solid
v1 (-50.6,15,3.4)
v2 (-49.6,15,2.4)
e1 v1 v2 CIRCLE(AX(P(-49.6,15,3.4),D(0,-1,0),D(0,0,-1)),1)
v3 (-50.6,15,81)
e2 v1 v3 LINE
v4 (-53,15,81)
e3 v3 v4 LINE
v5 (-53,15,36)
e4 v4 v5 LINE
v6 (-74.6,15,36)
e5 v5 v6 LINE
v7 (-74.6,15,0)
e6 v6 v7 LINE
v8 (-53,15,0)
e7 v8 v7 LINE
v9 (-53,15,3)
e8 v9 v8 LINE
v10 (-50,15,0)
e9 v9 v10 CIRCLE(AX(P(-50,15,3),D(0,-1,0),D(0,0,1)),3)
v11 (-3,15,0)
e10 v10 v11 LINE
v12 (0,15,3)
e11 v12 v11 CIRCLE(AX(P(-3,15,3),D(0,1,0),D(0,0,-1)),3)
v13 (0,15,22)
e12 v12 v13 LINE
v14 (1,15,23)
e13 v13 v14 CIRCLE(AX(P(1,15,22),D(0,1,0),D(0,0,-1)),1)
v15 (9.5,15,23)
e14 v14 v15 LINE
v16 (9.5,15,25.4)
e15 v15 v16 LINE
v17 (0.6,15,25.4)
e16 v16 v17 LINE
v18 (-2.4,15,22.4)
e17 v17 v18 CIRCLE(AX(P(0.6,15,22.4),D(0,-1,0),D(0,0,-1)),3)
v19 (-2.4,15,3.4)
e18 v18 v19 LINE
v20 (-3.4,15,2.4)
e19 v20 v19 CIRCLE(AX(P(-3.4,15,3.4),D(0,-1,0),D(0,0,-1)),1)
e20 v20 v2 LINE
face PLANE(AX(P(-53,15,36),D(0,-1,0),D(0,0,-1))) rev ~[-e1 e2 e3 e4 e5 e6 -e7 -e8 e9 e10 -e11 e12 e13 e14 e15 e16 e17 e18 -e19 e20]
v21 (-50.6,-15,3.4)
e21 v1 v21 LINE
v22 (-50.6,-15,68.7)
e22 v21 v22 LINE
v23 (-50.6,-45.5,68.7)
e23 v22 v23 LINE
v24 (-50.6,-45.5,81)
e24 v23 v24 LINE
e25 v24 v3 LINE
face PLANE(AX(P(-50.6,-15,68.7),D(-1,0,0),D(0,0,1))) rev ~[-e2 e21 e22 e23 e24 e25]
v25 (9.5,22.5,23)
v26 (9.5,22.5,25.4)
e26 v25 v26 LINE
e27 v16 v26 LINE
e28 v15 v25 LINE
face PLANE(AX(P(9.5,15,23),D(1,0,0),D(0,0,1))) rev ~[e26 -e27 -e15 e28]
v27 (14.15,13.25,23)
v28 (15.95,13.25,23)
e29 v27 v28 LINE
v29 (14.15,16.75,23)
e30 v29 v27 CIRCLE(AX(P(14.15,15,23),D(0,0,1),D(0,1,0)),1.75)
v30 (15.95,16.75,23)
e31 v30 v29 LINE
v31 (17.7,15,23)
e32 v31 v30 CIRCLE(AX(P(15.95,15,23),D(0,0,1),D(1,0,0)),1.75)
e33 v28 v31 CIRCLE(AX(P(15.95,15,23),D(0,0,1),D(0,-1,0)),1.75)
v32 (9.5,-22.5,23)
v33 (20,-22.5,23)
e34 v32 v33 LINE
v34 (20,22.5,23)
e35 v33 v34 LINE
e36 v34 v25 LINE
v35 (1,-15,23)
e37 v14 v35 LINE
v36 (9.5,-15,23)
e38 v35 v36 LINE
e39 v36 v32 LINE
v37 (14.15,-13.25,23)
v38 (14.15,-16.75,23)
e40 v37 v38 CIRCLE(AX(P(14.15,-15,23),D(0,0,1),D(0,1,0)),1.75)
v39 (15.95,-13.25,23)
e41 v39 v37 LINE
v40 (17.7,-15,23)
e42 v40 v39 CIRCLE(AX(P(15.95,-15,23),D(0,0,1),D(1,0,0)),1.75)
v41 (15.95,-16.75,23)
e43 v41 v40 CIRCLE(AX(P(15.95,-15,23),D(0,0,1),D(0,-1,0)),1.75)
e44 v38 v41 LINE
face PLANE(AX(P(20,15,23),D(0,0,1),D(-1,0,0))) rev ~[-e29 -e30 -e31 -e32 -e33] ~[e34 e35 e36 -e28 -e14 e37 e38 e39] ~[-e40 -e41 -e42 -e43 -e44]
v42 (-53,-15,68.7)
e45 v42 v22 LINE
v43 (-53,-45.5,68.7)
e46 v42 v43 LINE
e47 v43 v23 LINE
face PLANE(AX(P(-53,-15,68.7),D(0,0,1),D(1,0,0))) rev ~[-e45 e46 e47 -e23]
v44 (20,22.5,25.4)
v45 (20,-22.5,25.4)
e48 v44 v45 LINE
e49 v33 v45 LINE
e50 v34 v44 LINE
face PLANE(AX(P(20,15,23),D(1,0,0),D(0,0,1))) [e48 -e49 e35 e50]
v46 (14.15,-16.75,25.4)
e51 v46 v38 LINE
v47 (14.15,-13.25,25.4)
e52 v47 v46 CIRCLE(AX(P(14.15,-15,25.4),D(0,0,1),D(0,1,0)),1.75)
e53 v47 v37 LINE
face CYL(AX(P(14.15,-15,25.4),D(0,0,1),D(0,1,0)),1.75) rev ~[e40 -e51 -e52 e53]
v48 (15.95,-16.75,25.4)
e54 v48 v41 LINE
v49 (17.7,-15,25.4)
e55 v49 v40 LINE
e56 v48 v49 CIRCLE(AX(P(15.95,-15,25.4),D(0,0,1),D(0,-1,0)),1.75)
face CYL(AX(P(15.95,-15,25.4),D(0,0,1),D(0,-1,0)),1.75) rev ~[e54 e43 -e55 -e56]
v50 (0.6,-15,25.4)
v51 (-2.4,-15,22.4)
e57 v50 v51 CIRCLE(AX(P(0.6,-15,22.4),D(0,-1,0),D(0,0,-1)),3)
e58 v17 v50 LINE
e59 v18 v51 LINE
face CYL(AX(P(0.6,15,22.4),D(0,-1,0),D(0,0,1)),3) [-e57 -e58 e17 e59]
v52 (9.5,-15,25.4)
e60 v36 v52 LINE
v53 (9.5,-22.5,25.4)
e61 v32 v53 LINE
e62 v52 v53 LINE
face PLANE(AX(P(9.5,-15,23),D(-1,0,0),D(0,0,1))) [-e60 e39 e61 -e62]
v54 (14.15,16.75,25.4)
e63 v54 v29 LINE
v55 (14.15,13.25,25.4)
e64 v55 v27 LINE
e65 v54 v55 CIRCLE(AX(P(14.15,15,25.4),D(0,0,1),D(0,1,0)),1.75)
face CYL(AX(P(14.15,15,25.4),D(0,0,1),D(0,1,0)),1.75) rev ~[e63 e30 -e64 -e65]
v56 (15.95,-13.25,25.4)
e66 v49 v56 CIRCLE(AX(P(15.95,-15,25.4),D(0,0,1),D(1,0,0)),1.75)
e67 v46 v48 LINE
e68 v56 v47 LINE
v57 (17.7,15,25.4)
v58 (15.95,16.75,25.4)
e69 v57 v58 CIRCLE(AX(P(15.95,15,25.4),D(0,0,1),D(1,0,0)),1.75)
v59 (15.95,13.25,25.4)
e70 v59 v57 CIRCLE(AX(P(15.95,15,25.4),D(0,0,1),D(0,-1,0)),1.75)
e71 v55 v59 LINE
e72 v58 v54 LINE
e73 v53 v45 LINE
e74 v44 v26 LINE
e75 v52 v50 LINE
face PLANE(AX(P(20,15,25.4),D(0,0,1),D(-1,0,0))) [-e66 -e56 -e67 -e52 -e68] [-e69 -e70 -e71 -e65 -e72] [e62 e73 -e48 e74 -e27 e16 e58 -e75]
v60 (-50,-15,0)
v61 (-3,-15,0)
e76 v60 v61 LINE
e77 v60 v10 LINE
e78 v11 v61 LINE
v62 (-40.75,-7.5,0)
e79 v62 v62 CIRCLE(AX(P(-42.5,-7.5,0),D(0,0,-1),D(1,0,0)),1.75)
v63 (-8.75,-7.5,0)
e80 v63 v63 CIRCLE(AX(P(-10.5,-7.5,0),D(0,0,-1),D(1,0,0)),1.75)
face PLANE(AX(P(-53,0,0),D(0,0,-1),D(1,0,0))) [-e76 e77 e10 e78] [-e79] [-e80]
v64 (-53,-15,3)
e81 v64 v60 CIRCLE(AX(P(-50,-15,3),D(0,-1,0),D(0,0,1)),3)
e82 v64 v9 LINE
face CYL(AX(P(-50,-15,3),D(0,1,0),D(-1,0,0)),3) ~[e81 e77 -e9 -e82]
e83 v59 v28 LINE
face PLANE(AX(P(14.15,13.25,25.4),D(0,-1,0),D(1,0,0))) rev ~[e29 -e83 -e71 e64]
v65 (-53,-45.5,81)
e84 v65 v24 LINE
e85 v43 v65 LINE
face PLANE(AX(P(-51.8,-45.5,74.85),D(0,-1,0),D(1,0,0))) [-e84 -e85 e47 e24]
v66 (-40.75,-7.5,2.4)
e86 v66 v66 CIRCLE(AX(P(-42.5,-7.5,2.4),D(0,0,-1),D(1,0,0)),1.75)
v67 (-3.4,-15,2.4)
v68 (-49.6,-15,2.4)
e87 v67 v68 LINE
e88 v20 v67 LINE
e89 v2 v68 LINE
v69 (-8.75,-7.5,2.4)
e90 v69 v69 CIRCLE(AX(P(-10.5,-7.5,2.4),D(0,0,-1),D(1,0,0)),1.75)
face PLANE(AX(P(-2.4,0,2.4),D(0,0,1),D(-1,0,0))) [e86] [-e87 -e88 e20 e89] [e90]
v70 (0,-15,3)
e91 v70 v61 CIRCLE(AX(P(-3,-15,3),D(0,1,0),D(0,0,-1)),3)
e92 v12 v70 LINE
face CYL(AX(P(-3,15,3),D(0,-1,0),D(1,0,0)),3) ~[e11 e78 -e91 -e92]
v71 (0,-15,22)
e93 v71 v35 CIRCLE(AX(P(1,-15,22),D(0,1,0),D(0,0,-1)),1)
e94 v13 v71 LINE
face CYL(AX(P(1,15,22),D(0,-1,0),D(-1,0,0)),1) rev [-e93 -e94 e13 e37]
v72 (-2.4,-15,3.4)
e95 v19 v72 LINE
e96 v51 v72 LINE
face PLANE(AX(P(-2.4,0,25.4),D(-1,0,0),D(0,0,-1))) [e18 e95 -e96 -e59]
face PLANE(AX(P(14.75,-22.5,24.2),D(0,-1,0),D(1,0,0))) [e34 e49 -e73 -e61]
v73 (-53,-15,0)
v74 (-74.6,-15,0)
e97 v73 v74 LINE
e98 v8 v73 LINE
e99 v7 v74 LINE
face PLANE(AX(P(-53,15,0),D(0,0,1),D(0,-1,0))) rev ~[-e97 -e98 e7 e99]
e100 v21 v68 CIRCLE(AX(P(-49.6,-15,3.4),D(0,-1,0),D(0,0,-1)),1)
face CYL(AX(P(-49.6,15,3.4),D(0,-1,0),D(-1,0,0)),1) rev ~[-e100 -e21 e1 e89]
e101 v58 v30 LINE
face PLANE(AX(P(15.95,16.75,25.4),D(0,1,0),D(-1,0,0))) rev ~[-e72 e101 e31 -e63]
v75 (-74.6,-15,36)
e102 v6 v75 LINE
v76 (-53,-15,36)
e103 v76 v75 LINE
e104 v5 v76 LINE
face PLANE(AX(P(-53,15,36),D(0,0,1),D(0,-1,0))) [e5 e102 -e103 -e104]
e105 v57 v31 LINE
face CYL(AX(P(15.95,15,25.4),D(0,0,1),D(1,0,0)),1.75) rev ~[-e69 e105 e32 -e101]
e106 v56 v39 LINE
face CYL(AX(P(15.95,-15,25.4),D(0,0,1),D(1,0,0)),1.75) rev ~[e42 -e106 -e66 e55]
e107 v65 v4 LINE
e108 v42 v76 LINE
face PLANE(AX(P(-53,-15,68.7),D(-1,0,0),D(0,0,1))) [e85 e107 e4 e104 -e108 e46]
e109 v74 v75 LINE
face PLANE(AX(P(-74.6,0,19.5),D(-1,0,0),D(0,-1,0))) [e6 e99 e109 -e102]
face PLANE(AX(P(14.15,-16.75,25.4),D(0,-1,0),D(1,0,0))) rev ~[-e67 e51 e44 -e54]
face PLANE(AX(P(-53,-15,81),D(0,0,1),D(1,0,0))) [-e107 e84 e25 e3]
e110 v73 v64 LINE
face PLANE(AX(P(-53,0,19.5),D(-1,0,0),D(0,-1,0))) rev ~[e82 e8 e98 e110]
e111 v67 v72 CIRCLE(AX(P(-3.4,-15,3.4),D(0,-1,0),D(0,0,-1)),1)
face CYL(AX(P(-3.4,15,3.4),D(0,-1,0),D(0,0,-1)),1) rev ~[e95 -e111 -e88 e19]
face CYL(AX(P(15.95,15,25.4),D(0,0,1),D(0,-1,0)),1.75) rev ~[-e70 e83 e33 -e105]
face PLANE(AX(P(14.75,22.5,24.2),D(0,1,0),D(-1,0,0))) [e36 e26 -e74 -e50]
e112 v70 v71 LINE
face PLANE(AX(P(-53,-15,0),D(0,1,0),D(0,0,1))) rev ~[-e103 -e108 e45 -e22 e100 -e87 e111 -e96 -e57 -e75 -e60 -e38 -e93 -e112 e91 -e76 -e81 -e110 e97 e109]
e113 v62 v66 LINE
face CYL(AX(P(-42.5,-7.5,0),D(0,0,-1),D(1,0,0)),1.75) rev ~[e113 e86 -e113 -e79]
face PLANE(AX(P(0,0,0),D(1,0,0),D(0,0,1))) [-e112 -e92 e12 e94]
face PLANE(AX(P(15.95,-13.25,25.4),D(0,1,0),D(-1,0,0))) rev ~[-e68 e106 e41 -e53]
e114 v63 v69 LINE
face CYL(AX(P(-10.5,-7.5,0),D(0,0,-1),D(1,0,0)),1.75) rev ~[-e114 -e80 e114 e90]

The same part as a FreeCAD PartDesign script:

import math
import FreeCAD as App
import Part
import Sketcher
from FreeCAD import Vector


def edges_at(feature, points):
    """Names of the edges that pass closest to the given points."""
    edges = feature.Shape.Edges
    near = lambda p: min(range(len(edges)), key=lambda i: edges[i].distToShape(Part.Vertex(*p))[0])
    return sorted({f"Edge{near(p) + 1}" for p in points})

doc = App.newDocument("Part")
body = doc.addObject("PartDesign::Body", "Body")

# Sketch on XZ plane
sketch1 = body.newObject("Sketcher::SketchObject", "Sketch")
sketch1.AttachmentSupport = (doc.getObject("XZ_Plane"), [""])
sketch1.MapMode = "FlatFace"
sketch1.addGeometry([
    Part.LineSegment(Vector(-53, 0, 0), Vector(0, 0, 0)),  # 0
    Part.LineSegment(Vector(0, 0, 0), Vector(0, 23, 0)),  # 1
    Part.LineSegment(Vector(0, 23, 0), Vector(20, 23, 0)),  # 2
    Part.LineSegment(Vector(20, 23, 0), Vector(20, 25.4, 0)),  # 3
    Part.LineSegment(Vector(20, 25.4, 0), Vector(-2.4, 25.4, 0)),  # 4
    Part.LineSegment(Vector(-2.4, 25.4, 0), Vector(-2.4, 2.4, 0)),  # 5
    Part.LineSegment(Vector(-2.4, 2.4, 0), Vector(-50.6, 2.4, 0)),  # 6
    Part.LineSegment(Vector(-50.6, 2.4, 0), Vector(-50.6, 81, 0)),  # 7
    Part.LineSegment(Vector(-50.6, 81, 0), Vector(-53, 81, 0)),  # 8
    Part.LineSegment(Vector(-53, 81, 0), Vector(-53, 0, 0)),  # 9
], False)
sketch1.addConstraint([
    Sketcher.Constraint("Coincident", 0, 2, 1, 1),
    Sketcher.Constraint("Coincident", 1, 2, 2, 1),
    Sketcher.Constraint("Coincident", 2, 2, 3, 1),
    Sketcher.Constraint("Coincident", 3, 2, 4, 1),
    Sketcher.Constraint("Coincident", 4, 2, 5, 1),
    Sketcher.Constraint("Coincident", 5, 2, 6, 1),
    Sketcher.Constraint("Coincident", 6, 2, 7, 1),
    Sketcher.Constraint("Coincident", 7, 2, 8, 1),
    Sketcher.Constraint("Coincident", 8, 2, 9, 1),
    Sketcher.Constraint("Coincident", 9, 2, 0, 1),
    Sketcher.Constraint("Horizontal", 0),
    Sketcher.Constraint("Vertical", 1),
    Sketcher.Constraint("Horizontal", 2),
    Sketcher.Constraint("Vertical", 3),
    Sketcher.Constraint("Horizontal", 4),
    Sketcher.Constraint("Vertical", 5),
    Sketcher.Constraint("Horizontal", 6),
    Sketcher.Constraint("Vertical", 7),
    Sketcher.Constraint("Horizontal", 8),
    Sketcher.Constraint("Vertical", 9),
    Sketcher.Constraint("Coincident", 0, 2, -1, 1),
    Sketcher.Constraint("Equal", 8, 3),
    Sketcher.Constraint("Equal", 1, 5),
    Sketcher.Constraint("DistanceX", 0, 1, 0, 2, 53.0),
    Sketcher.Constraint("DistanceX", 2, 1, 2, 2, 20.0),
    Sketcher.Constraint("DistanceY", 1, 1, 1, 2, 23.0),
    Sketcher.Constraint("DistanceY", 9, 2, 9, 1, 81.0),
    Sketcher.Constraint("DistanceX", 4, 2, 4, 1, 22.4),
    Sketcher.Constraint("DistanceX", 6, 2, 6, 1, 48.2),
])
pad1 = body.newObject("PartDesign::Pad", "Pad")
pad1.Profile = sketch1
pad1.Length = 30
pad1.Midplane = True

# Sketch on XZ plane
sketch2 = body.newObject("Sketcher::SketchObject", "Sketch001")
sketch2.AttachmentSupport = (doc.getObject("XZ_Plane"), [""])
sketch2.MapMode = "FlatFace"
sketch2.AttachmentOffset = App.Placement(Vector(0, 0, 15), App.Rotation())
sketch2.addGeometry([
    Part.LineSegment(Vector(-53, 81, 0), Vector(-53, 68.7, 0)),
    Part.LineSegment(Vector(-53, 68.7, 0), Vector(-50.6, 68.7, 0)),
    Part.LineSegment(Vector(-50.6, 68.7, 0), Vector(-50.6, 81, 0)),
    Part.LineSegment(Vector(-50.6, 81, 0), Vector(-53, 81, 0)),
], False)
sketch2.addConstraint([
    Sketcher.Constraint("Coincident", 0, 2, 1, 1),
    Sketcher.Constraint("Coincident", 1, 2, 2, 1),
    Sketcher.Constraint("Coincident", 2, 2, 3, 1),
    Sketcher.Constraint("Coincident", 3, 2, 0, 1),
    Sketcher.Constraint("Vertical", 0),
    Sketcher.Constraint("Horizontal", 1),
    Sketcher.Constraint("Vertical", 2),
    Sketcher.Constraint("Horizontal", 3),
    Sketcher.Constraint("DistanceX", 1, 1, 1, 2, 2.4),
    Sketcher.Constraint("DistanceY", 0, 2, 0, 1, 12.3),
    Sketcher.Constraint("DistanceX", 0, 2, -1, 1, 53.0),
    Sketcher.Constraint("DistanceY", -1, 1, 2, 2, 81.0),
])
pad2 = body.newObject("PartDesign::Pad", "Pad001")
pad2.Profile = sketch2
pad2.Length = 30.5

# Sketch on XZ plane
sketch3 = body.newObject("Sketcher::SketchObject", "Sketch002")
sketch3.AttachmentSupport = (doc.getObject("XZ_Plane"), [""])
sketch3.MapMode = "FlatFace"
sketch3.AttachmentOffset = App.Placement(Vector(0, 0, 15), App.Rotation())
sketch3.addGeometry([
    Part.LineSegment(Vector(9.5, 25.4, 0), Vector(9.5, 23, 0)),
    Part.LineSegment(Vector(9.5, 23, 0), Vector(20, 23, 0)),
    Part.LineSegment(Vector(20, 23, 0), Vector(20, 25.4, 0)),
    Part.LineSegment(Vector(20, 25.4, 0), Vector(9.5, 25.4, 0)),
], False)
sketch3.addConstraint([
    Sketcher.Constraint("Coincident", 0, 2, 1, 1),
    Sketcher.Constraint("Coincident", 1, 2, 2, 1),
    Sketcher.Constraint("Coincident", 2, 2, 3, 1),
    Sketcher.Constraint("Coincident", 3, 2, 0, 1),
    Sketcher.Constraint("Vertical", 0),
    Sketcher.Constraint("Horizontal", 1),
    Sketcher.Constraint("Vertical", 2),
    Sketcher.Constraint("Horizontal", 3),
    Sketcher.Constraint("DistanceX", 1, 1, 1, 2, 10.5),
    Sketcher.Constraint("DistanceY", 0, 2, 0, 1, 2.4),
    Sketcher.Constraint("DistanceY", -1, 1, 0, 2, 23.0),
    Sketcher.Constraint("DistanceX", -1, 1, 1, 2, 20.0),
])
pad3 = body.newObject("PartDesign::Pad", "Pad002")
pad3.Profile = sketch3
pad3.Length = 7.5

# Sketch on XZ plane
sketch4 = body.newObject("Sketcher::SketchObject", "Sketch003")
sketch4.AttachmentSupport = (doc.getObject("XZ_Plane"), [""])
sketch4.MapMode = "FlatFace"
sketch4.AttachmentOffset = App.Placement(Vector(0, 0, -15), App.Rotation())
sketch4.addGeometry([
    Part.LineSegment(Vector(20, 25.4, 0), Vector(20, 23, 0)),
    Part.LineSegment(Vector(20, 23, 0), Vector(9.5, 23, 0)),
    Part.LineSegment(Vector(9.5, 23, 0), Vector(9.5, 25.4, 0)),
    Part.LineSegment(Vector(9.5, 25.4, 0), Vector(20, 25.4, 0)),
], False)
sketch4.addConstraint([
    Sketcher.Constraint("Coincident", 0, 2, 1, 1),
    Sketcher.Constraint("Coincident", 1, 2, 2, 1),
    Sketcher.Constraint("Coincident", 2, 2, 3, 1),
    Sketcher.Constraint("Coincident", 3, 2, 0, 1),
    Sketcher.Constraint("Vertical", 0),
    Sketcher.Constraint("Horizontal", 1),
    Sketcher.Constraint("Vertical", 2),
    Sketcher.Constraint("Horizontal", 3),
    Sketcher.Constraint("DistanceX", 1, 2, 1, 1, 10.5),
    Sketcher.Constraint("DistanceY", 0, 2, 0, 1, 2.4),
    Sketcher.Constraint("DistanceX", -1, 1, 0, 2, 20.0),
    Sketcher.Constraint("DistanceY", -1, 1, 0, 2, 23.0),
])
pad4 = body.newObject("PartDesign::Pad", "Pad003")
pad4.Profile = sketch4
pad4.Length = 7.5
pad4.Reversed = True

# Sketch on XY plane
sketch5 = body.newObject("Sketcher::SketchObject", "Sketch004")
sketch5.AttachmentSupport = (doc.getObject("XY_Plane"), [""])
sketch5.MapMode = "FlatFace"
sketch5.AttachmentOffset = App.Placement(Vector(0, 0, 25.4), App.Rotation())
sketch5.addGeometry([
    Part.ArcOfCircle(Part.Circle(Vector(14.15, -15, 0), Vector(0, 0, 1), 1.75), math.radians(90), math.radians(270)),  # 0
    Part.LineSegment(Vector(14.15, -16.75, 0), Vector(15.95, -16.75, 0)),  # 1
    Part.ArcOfCircle(Part.Circle(Vector(15.95, -15, 0), Vector(0, 0, 1), 1.75), math.radians(-90), math.radians(0)),  # 2
    Part.ArcOfCircle(Part.Circle(Vector(15.95, -15, 0), Vector(0, 0, 1), 1.75), math.radians(0), math.radians(90)),  # 3
    Part.LineSegment(Vector(15.95, -13.25, 0), Vector(14.15, -13.25, 0)),  # 4
    Part.ArcOfCircle(Part.Circle(Vector(14.15, 15, 0), Vector(0, 0, 1), 1.75), math.radians(90), math.radians(270)),  # 5
    Part.LineSegment(Vector(14.15, 13.25, 0), Vector(15.95, 13.25, 0)),  # 6
    Part.ArcOfCircle(Part.Circle(Vector(15.95, 15, 0), Vector(0, 0, 1), 1.75), math.radians(-90), math.radians(0)),  # 7
    Part.ArcOfCircle(Part.Circle(Vector(15.95, 15, 0), Vector(0, 0, 1), 1.75), math.radians(0), math.radians(90)),  # 8
    Part.LineSegment(Vector(15.95, 16.75, 0), Vector(14.15, 16.75, 0)),  # 9
], False)
sketch5.addConstraint([
    Sketcher.Constraint("Tangent", 0, 2, 1, 1),
    Sketcher.Constraint("Tangent", 1, 2, 2, 1),
    Sketcher.Constraint("Tangent", 2, 2, 3, 1),
    Sketcher.Constraint("Tangent", 3, 2, 4, 1),
    Sketcher.Constraint("Tangent", 4, 2, 0, 1),
    Sketcher.Constraint("Tangent", 5, 2, 6, 1),
    Sketcher.Constraint("Tangent", 6, 2, 7, 1),
    Sketcher.Constraint("Tangent", 7, 2, 8, 1),
    Sketcher.Constraint("Tangent", 8, 2, 9, 1),
    Sketcher.Constraint("Tangent", 9, 2, 5, 1),
    Sketcher.Constraint("Horizontal", 1),
    Sketcher.Constraint("Horizontal", 4),
    Sketcher.Constraint("Horizontal", 6),
    Sketcher.Constraint("Horizontal", 9),
    Sketcher.Constraint("Equal", 0, 2),
    Sketcher.Constraint("Equal", 3, 5),
    Sketcher.Constraint("Equal", 5, 7),
    Sketcher.Constraint("Symmetric", 0, 3, 5, 3, -1),
    Sketcher.Constraint("Symmetric", 2, 2, 7, 2, -1),
    Sketcher.Constraint("Horizontal", 3, 3, 2, 2),
    Sketcher.Constraint("Radius", 0, 1.75),
    Sketcher.Constraint("DistanceX", 1, 1, 1, 2, 1.8),
    Sketcher.Constraint("DistanceY", 0, 3, -1, 1, 15.0),
    Sketcher.Constraint("DistanceX", -1, 1, 2, 2, 17.7),
])
pocket1 = body.newObject("PartDesign::Pocket", "Pocket")
pocket1.Profile = sketch5
pocket1.Type = "ThroughAll"
doc.recompute()

fillet = body.newObject("PartDesign::Fillet", "Fillet")
fillet.Base = (pocket1, edges_at(pocket1, [(-2.4, 0, 25.4), (0, 0, 0), (-53, 0, 0)]))
fillet.Radius = 3
doc.recompute()

fillet2 = body.newObject("PartDesign::Fillet", "Fillet001")
fillet2.Base = (fillet, edges_at(fillet, [(-50.6, 0, 2.4), (-2.4, 0, 2.4), (0, 0, 23)]))
fillet2.Radius = 1

# Sketch on YZ plane
sketch6 = body.newObject("Sketcher::SketchObject", "Sketch005")
sketch6.AttachmentSupport = (doc.getObject("YZ_Plane"), [""])
sketch6.MapMode = "FlatFace"
sketch6.AttachmentOffset = App.Placement(Vector(0, 0, -53), App.Rotation())
sketch6.addGeometry([
    Part.LineSegment(Vector(15, 36, 0), Vector(15, 0, 0)),
    Part.LineSegment(Vector(15, 0, 0), Vector(-15, 0, 0)),
    Part.LineSegment(Vector(-15, 0, 0), Vector(-15, 36, 0)),
    Part.LineSegment(Vector(-15, 36, 0), Vector(15, 36, 0)),
], False)
sketch6.addConstraint([
    Sketcher.Constraint("Coincident", 0, 2, 1, 1),
    Sketcher.Constraint("Coincident", 1, 2, 2, 1),
    Sketcher.Constraint("Coincident", 2, 2, 3, 1),
    Sketcher.Constraint("Coincident", 3, 2, 0, 1),
    Sketcher.Constraint("Vertical", 0),
    Sketcher.Constraint("Horizontal", 1),
    Sketcher.Constraint("Vertical", 2),
    Sketcher.Constraint("Horizontal", 3),
    Sketcher.Constraint("Symmetric", 0, 2, 1, 2, -1, 1),
    Sketcher.Constraint("DistanceX", 1, 2, 1, 1, 30.0),
    Sketcher.Constraint("DistanceY", 0, 2, 0, 1, 36.0),
])
pad5 = body.newObject("PartDesign::Pad", "Pad004")
pad5.Profile = sketch6
pad5.Length = 21.6
pad5.Reversed = True

# Sketch on XY plane
sketch7 = body.newObject("Sketcher::SketchObject", "Sketch006")
sketch7.AttachmentSupport = (doc.getObject("XY_Plane"), [""])
sketch7.MapMode = "FlatFace"
sketch7.addGeometry([
    Part.Circle(Vector(-42.5, -7.5, 0), Vector(0, 0, 1), 1.75),
    Part.Circle(Vector(-10.5, -7.5, 0), Vector(0, 0, 1), 1.75),
], False)
sketch7.addConstraint([
    Sketcher.Constraint("Equal", 0, 1),
    Sketcher.Constraint("Horizontal", 0, 3, 1, 3),
    Sketcher.Constraint("Diameter", 0, 3.5),
    Sketcher.Constraint("DistanceX", 0, 3, 1, 3, 32.0),
    Sketcher.Constraint("DistanceX", 0, 3, -1, 1, 42.5),
    Sketcher.Constraint("DistanceY", 0, 3, -1, 1, 7.5),
])
pocket2 = body.newObject("PartDesign::Pocket", "Pocket001")
pocket2.Profile = sketch7
pocket2.Type = "ThroughAll"
pocket2.Reversed = True

doc.recompute()
